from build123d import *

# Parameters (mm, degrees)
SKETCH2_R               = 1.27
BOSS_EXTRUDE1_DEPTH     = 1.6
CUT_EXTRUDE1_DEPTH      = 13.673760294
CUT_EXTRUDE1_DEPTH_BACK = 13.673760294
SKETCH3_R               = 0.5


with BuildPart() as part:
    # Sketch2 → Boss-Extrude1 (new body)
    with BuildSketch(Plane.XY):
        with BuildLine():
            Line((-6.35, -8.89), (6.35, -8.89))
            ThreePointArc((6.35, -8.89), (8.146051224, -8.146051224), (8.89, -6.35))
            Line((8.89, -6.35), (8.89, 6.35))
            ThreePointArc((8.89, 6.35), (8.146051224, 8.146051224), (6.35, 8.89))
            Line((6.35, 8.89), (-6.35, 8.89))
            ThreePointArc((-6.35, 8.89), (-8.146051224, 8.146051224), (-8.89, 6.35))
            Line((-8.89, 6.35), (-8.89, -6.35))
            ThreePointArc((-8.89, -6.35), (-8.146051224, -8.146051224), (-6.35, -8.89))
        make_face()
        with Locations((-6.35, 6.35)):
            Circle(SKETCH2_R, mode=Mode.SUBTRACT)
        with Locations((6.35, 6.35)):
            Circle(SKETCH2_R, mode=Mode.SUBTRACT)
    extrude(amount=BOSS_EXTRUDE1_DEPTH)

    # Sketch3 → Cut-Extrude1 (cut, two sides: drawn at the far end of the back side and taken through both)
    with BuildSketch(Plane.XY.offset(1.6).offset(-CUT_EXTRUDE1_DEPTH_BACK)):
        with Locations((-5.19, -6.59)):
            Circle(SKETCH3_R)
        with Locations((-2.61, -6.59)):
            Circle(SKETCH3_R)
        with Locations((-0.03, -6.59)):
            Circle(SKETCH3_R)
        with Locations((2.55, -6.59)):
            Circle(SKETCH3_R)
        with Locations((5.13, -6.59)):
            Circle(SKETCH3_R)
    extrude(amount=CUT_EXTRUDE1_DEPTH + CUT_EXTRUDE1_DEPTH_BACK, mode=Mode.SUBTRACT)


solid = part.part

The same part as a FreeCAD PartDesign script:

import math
import FreeCAD as App
import Part
import Sketcher

V = App.Vector
Q = App.Units.Quantity

doc = App.newDocument("Part")
body = doc.addObject("PartDesign::Body", "Body")

sketch1 = body.newObject("Sketcher::SketchObject", "Sketch")
sketch1.AttachmentSupport = (doc.getObject("XY_Plane"), [""])
sketch1.MapMode = "FlatFace"
sketch1.addGeometry([
    Part.LineSegment(V(-6.35, -8.89, 0), V(6.35, -8.89, 0)),
    Part.ArcOfCircle(Part.Circle(V(6.35, -6.35, 0), V(0, 0, 1), 2.54), math.radians(-90), math.radians(0)),
    Part.LineSegment(V(8.89, -6.35, 0), V(8.89, 6.35, 0)),
    Part.ArcOfCircle(Part.Circle(V(6.35, 6.35, 0), V(0, 0, 1), 2.54), math.radians(0), math.radians(90)),
    Part.LineSegment(V(6.35, 8.89, 0), V(-6.35, 8.89, 0)),
    Part.ArcOfCircle(Part.Circle(V(-6.35, 6.35, 0), V(0, 0, 1), 2.54), math.radians(90), math.radians(180)),
    Part.LineSegment(V(-8.89, 6.35, 0), V(-8.89, -6.35, 0)),
    Part.ArcOfCircle(Part.Circle(V(-6.35, -6.35, 0), V(0, 0, 1), 2.54), math.radians(-180), math.radians(-90)),
    Part.Circle(V(-6.35, 6.35, 0), V(0, 0, 1), 1.27),
    Part.Circle(V(6.35, 6.35, 0), V(0, 0, 1), 1.27),
], False)
sketch1.addConstraint([
    Sketcher.Constraint("Tangent", 0, 2, 1, 1),
    Sketcher.Constraint("Tangent", 1, 2, 2, 1),
    Sketcher.Constraint("Tangent", 2, 2, 3, 1),
    Sketcher.Constraint("Tangent", 3, 2, 4, 1),
    Sketcher.Constraint("Tangent", 4, 2, 5, 1),
    Sketcher.Constraint("Tangent", 5, 2, 6, 1),
    Sketcher.Constraint("Tangent", 6, 2, 7, 1),
    Sketcher.Constraint("Tangent", 7, 2, 0, 1),
    Sketcher.Constraint("Horizontal", 0),
    Sketcher.Constraint("Vertical", 2),
    Sketcher.Constraint("Horizontal", 4),
    Sketcher.Constraint("Vertical", 6),
    Sketcher.Constraint("Coincident", 8, 3, 5, 3),
    Sketcher.Constraint("Coincident", 9, 3, 3, 3),
    Sketcher.Constraint("Equal", 1, 3),
    Sketcher.Constraint("Equal", 3, 5),
    Sketcher.Constraint("Equal", 5, 7),
    Sketcher.Constraint("Equal", 8, 9),
    Sketcher.Constraint("Symmetric", 1, 3, 5, 3, -1, 1),
    Sketcher.Constraint("Equal", 4, 2),
    Sketcher.Constraint("Diameter", 8, Q("0.1 in")),
    Sketcher.Constraint("Radius", 1, Q("0.1 in")),
    Sketcher.Constraint("DistanceX", 0, 1, 0, 2, Q("0.5 in")),
])
pad1 = body.newObject("PartDesign::Pad", "Pad")
pad1.Profile = sketch1
pad1.Length = 1.6

sketch2 = body.newObject("Sketcher::SketchObject", "Sketch001")
sketch2.AttachmentSupport = (doc.getObject("XY_Plane"), [""])
sketch2.MapMode = "FlatFace"
sketch2.AttachmentOffset = App.Placement(V(0, 0, 1.6), App.Rotation())
sketch2.addGeometry([
    Part.Circle(V(-5.19, -6.59, 0), V(0, 0, 1), 0.5),
    Part.Circle(V(-2.61, -6.59, 0), V(0, 0, 1), 0.5),
    Part.Circle(V(-0.03, -6.59, 0), V(0, 0, 1), 0.5),
    Part.Circle(V(2.55, -6.59, 0), V(0, 0, 1), 0.5),
    Part.Circle(V(5.13, -6.59, 0), V(0, 0, 1), 0.5),
], False)
sketch2.addConstraint([
    Sketcher.Constraint("Equal", 0, 1),
    Sketcher.Constraint("Equal", 1, 2),
    Sketcher.Constraint("Equal", 2, 3),
    Sketcher.Constraint("Equal", 3, 4),
    Sketcher.Constraint("Horizontal", 0, 3, 1, 3),
    Sketcher.Constraint("Horizontal", 1, 3, 2, 3),
    Sketcher.Constraint("Horizontal", 2, 3, 3, 3),
    Sketcher.Constraint("Horizontal", 3, 3, 4, 3),
    Sketcher.Constraint("Diameter", 0, Q("1 mm")),
    Sketcher.Constraint("DistanceX", 0, 3, -1, 1, Q("5.19 mm")),
    Sketcher.Constraint("DistanceY", 0, 3, -1, 1, Q("6.59 mm")),
    Sketcher.Constraint("DistanceX", 1, 3, -1, 1, Q("2.61 mm")),
    Sketcher.Constraint("DistanceX", 2, 3, -1, 1, Q("0.03 mm")),
    Sketcher.Constraint("DistanceX", -1, 1, 3, 3, Q("2.55 mm")),
    Sketcher.Constraint("DistanceX", -1, 1, 4, 3, Q("5.13 mm")),
])
pocket1 = body.newObject("PartDesign::Pocket", "Pocket")
pocket1.Profile = sketch2
pocket1.Type = "ThroughAll"
pocket1.Midplane = True

doc.recompute()
